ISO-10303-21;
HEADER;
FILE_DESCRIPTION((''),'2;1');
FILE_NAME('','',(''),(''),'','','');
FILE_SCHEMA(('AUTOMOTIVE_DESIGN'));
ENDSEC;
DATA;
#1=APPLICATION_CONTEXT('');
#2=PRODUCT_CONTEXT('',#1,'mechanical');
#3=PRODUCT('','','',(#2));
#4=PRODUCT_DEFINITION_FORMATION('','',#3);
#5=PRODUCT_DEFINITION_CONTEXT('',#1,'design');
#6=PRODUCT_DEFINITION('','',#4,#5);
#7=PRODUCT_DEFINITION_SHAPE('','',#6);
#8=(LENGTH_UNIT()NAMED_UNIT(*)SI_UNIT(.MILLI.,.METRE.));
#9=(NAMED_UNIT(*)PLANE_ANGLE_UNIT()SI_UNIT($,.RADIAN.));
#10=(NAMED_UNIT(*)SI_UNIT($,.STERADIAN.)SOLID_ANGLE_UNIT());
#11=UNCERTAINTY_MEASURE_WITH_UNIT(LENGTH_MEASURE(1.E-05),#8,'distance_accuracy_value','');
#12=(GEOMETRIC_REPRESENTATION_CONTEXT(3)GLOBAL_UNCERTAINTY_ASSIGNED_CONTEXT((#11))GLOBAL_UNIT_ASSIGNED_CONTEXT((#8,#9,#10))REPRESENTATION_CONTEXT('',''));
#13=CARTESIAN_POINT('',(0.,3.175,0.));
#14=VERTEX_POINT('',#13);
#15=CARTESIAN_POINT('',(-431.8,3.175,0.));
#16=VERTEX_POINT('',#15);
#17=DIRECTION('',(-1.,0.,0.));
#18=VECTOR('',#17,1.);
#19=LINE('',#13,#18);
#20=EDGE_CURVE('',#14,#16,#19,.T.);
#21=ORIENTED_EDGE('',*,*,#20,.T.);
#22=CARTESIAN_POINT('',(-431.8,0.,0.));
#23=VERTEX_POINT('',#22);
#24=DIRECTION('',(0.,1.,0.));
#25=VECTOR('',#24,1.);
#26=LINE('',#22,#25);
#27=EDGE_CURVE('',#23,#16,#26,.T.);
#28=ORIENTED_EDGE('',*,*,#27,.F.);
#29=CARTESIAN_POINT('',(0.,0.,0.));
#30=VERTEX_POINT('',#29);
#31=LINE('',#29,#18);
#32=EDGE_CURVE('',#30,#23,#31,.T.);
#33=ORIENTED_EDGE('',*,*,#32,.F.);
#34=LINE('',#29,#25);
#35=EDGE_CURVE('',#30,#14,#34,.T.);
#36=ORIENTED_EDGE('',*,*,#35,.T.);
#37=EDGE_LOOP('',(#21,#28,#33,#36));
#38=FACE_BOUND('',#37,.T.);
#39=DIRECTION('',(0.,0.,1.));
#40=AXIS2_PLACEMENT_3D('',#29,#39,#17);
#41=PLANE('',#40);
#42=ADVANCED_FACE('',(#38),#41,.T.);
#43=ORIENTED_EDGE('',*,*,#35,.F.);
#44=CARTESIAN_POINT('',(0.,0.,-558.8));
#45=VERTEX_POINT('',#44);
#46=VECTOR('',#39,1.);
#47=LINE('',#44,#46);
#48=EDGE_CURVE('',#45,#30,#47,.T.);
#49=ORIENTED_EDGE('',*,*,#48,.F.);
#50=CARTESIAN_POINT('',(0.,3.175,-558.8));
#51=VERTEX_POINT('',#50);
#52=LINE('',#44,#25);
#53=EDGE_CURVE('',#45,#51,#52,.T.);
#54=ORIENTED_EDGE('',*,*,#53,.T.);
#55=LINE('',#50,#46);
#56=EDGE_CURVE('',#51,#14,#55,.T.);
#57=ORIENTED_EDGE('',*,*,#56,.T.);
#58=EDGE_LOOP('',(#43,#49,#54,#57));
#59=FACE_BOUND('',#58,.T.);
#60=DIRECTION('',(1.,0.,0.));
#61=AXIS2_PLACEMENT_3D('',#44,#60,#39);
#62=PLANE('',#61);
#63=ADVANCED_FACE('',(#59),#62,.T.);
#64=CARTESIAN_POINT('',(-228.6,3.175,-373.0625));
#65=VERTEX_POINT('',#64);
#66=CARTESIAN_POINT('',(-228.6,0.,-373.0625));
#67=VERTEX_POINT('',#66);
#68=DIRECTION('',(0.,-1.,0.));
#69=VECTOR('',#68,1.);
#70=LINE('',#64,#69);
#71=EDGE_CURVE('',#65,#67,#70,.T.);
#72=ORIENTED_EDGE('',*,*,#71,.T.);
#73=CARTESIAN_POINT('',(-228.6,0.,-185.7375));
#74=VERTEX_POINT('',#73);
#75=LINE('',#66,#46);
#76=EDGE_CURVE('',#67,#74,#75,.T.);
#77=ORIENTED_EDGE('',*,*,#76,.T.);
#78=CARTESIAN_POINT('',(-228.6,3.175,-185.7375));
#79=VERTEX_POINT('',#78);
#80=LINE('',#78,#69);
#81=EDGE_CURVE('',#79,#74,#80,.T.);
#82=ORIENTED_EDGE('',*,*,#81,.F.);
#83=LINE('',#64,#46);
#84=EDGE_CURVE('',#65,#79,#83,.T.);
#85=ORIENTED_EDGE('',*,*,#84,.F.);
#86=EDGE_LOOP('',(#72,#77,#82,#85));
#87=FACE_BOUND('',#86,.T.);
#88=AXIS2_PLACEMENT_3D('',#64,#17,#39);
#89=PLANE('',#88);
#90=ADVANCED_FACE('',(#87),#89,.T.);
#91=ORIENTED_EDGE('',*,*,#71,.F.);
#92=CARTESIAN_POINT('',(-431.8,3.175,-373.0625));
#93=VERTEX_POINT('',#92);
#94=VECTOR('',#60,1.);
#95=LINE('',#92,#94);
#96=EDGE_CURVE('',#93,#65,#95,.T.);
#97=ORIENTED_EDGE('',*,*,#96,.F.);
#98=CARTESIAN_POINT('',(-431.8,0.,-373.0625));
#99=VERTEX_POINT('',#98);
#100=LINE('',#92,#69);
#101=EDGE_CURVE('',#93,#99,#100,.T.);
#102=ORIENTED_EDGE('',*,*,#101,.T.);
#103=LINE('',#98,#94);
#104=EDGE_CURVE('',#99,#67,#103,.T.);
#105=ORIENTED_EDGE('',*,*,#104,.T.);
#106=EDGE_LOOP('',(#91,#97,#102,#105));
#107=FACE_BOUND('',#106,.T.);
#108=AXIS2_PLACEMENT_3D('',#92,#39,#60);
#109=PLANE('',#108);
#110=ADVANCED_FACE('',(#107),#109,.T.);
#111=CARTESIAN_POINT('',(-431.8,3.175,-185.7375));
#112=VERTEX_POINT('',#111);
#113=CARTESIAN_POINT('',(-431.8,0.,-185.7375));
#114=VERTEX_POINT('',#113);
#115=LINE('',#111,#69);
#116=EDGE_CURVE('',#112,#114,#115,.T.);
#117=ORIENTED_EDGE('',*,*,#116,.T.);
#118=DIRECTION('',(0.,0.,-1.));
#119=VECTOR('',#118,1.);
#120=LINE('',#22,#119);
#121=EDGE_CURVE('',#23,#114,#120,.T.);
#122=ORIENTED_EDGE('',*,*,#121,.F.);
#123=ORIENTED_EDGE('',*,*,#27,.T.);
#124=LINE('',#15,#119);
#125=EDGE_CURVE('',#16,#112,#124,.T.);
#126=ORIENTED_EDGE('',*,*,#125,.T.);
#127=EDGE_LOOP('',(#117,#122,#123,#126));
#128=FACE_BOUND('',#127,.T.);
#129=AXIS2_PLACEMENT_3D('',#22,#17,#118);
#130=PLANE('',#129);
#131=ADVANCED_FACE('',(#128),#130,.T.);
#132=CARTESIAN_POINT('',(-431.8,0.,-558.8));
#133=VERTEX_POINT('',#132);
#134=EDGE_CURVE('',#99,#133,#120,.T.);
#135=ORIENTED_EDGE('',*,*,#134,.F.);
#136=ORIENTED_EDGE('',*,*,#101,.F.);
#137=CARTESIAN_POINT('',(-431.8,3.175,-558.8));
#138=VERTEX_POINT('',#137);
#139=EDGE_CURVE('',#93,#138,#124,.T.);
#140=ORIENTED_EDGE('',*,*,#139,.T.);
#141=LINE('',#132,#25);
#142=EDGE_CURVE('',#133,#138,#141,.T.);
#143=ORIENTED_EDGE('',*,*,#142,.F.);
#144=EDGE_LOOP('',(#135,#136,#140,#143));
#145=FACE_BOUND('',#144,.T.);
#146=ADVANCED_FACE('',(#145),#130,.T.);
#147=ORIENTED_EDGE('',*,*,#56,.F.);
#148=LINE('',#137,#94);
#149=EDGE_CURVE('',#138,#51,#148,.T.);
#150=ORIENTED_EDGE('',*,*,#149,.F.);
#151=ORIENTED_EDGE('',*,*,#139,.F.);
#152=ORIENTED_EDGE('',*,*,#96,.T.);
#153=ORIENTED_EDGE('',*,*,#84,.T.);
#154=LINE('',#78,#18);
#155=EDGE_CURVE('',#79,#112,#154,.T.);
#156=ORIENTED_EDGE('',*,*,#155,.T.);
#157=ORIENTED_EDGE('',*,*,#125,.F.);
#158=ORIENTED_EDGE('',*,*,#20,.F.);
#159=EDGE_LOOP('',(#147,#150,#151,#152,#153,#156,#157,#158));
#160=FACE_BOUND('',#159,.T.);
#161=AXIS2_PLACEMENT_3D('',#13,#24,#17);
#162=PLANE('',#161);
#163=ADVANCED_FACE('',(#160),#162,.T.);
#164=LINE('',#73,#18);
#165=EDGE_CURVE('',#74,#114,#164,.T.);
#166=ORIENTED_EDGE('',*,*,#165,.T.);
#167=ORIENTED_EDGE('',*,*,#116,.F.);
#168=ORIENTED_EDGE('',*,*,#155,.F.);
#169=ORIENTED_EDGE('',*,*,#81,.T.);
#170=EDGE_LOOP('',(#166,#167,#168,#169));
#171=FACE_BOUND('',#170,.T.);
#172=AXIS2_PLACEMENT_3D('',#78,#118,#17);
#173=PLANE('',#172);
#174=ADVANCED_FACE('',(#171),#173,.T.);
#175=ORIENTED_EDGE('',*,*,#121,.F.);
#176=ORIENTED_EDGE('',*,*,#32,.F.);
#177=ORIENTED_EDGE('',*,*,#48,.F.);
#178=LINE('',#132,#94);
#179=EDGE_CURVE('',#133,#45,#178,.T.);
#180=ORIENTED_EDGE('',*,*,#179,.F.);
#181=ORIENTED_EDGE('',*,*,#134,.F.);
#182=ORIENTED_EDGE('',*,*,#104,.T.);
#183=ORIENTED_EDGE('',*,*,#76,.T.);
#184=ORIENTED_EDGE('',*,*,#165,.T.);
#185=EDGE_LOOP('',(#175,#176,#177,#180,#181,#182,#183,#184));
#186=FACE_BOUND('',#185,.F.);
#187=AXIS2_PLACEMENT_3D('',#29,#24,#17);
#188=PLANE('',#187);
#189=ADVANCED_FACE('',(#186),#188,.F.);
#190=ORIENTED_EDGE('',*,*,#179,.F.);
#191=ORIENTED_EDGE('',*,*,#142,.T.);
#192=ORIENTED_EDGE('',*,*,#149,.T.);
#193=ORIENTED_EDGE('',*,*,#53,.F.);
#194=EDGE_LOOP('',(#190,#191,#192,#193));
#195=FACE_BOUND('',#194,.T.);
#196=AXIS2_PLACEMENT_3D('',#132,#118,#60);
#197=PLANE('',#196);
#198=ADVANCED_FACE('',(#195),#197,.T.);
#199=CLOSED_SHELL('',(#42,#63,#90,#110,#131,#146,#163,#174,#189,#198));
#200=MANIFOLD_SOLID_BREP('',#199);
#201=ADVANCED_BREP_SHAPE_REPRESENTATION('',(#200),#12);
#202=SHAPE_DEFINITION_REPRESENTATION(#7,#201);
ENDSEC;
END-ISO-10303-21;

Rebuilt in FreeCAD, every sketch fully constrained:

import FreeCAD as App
import Part
import Sketcher

V = App.Vector
Q = App.Units.Quantity


def add_polygon(sketch, points):
    """Adds a closed chain of lines whose ends are joined by coincident constraints."""
    first, n = sketch.GeometryCount, len(points)
    for a, b in zip(points, points[1:] + points[:1]):
        sketch.addGeometry(Part.LineSegment(App.Vector(*a, 0), App.Vector(*b, 0)), False)
    for i in range(n):
        sketch.addConstraint(Sketcher.Constraint("Coincident", first + i, 2, first + (i + 1) % n, 1))

doc = App.newDocument("Part")
body = doc.addObject("PartDesign::Body", "Body")

# Sketch on XZ plane
sketch1 = body.newObject("Sketcher::SketchObject", "Sketch")
sketch1.AttachmentSupport = (doc.getObject("XZ_Plane"), [""])
sketch1.MapMode = "FlatFace"
add_polygon(sketch1, [(-432, 0), (0, 0), (0, -559), (-432, -559)])  # lines 0-3
sketch1.addConstraint([
    Sketcher.Constraint("Horizontal", 0),
    Sketcher.Constraint("Vertical", 1),
    Sketcher.Constraint("Horizontal", 2),
    Sketcher.Constraint("Vertical", 3),
    Sketcher.Constraint("Coincident", 0, 2, -1, 1),
    Sketcher.Constraint("DistanceX", 0, 1, 0, 2, Q("17 in")),
    Sketcher.Constraint("DistanceY", 1, 2, 1, 1, Q("22 in")),
])
pad1 = body.newObject("PartDesign::Pad", "Pad")
pad1.Profile = sketch1
pad1.Length = Q("0.125 in")
pad1.Reversed = True

# Sketch on XZ plane
sketch2 = body.newObject("Sketcher::SketchObject", "Sketch001")
sketch2.AttachmentSupport = (doc.getObject("XZ_Plane"), [""])
sketch2.MapMode = "FlatFace"
sketch2.AttachmentOffset = App.Placement(V(0, 0, -0.125 * 25.4), App.Rotation())
add_polygon(sketch2, [(-229, -373), (-432, -373), (-432, -186), (-229, -186)])  # lines 0-3
sketch2.addConstraint([
    Sketcher.Constraint("Horizontal", 0),
    Sketcher.Constraint("Vertical", 1),
    Sketcher.Constraint("Horizontal", 2),
    Sketcher.Constraint("Vertical", 3),
    Sketcher.Constraint("DistanceX", 0, 2, 0, 1, Q("8 in")),
    Sketcher.Constraint("DistanceY", 1, 1, 1, 2, Q("7.375 in")),
    Sketcher.Constraint("DistanceX", 0, 2, -1, 1, Q("17 in")),
    Sketcher.Constraint("DistanceY", 0, 2, -1, 1, Q("14.6875 in")),
])
pocket1 = body.newObject("PartDesign::Pocket", "Pocket")
pocket1.Profile = sketch2
pocket1.Length = Q("0.125 in")
pocket1.Reversed = True

doc.recompute()
